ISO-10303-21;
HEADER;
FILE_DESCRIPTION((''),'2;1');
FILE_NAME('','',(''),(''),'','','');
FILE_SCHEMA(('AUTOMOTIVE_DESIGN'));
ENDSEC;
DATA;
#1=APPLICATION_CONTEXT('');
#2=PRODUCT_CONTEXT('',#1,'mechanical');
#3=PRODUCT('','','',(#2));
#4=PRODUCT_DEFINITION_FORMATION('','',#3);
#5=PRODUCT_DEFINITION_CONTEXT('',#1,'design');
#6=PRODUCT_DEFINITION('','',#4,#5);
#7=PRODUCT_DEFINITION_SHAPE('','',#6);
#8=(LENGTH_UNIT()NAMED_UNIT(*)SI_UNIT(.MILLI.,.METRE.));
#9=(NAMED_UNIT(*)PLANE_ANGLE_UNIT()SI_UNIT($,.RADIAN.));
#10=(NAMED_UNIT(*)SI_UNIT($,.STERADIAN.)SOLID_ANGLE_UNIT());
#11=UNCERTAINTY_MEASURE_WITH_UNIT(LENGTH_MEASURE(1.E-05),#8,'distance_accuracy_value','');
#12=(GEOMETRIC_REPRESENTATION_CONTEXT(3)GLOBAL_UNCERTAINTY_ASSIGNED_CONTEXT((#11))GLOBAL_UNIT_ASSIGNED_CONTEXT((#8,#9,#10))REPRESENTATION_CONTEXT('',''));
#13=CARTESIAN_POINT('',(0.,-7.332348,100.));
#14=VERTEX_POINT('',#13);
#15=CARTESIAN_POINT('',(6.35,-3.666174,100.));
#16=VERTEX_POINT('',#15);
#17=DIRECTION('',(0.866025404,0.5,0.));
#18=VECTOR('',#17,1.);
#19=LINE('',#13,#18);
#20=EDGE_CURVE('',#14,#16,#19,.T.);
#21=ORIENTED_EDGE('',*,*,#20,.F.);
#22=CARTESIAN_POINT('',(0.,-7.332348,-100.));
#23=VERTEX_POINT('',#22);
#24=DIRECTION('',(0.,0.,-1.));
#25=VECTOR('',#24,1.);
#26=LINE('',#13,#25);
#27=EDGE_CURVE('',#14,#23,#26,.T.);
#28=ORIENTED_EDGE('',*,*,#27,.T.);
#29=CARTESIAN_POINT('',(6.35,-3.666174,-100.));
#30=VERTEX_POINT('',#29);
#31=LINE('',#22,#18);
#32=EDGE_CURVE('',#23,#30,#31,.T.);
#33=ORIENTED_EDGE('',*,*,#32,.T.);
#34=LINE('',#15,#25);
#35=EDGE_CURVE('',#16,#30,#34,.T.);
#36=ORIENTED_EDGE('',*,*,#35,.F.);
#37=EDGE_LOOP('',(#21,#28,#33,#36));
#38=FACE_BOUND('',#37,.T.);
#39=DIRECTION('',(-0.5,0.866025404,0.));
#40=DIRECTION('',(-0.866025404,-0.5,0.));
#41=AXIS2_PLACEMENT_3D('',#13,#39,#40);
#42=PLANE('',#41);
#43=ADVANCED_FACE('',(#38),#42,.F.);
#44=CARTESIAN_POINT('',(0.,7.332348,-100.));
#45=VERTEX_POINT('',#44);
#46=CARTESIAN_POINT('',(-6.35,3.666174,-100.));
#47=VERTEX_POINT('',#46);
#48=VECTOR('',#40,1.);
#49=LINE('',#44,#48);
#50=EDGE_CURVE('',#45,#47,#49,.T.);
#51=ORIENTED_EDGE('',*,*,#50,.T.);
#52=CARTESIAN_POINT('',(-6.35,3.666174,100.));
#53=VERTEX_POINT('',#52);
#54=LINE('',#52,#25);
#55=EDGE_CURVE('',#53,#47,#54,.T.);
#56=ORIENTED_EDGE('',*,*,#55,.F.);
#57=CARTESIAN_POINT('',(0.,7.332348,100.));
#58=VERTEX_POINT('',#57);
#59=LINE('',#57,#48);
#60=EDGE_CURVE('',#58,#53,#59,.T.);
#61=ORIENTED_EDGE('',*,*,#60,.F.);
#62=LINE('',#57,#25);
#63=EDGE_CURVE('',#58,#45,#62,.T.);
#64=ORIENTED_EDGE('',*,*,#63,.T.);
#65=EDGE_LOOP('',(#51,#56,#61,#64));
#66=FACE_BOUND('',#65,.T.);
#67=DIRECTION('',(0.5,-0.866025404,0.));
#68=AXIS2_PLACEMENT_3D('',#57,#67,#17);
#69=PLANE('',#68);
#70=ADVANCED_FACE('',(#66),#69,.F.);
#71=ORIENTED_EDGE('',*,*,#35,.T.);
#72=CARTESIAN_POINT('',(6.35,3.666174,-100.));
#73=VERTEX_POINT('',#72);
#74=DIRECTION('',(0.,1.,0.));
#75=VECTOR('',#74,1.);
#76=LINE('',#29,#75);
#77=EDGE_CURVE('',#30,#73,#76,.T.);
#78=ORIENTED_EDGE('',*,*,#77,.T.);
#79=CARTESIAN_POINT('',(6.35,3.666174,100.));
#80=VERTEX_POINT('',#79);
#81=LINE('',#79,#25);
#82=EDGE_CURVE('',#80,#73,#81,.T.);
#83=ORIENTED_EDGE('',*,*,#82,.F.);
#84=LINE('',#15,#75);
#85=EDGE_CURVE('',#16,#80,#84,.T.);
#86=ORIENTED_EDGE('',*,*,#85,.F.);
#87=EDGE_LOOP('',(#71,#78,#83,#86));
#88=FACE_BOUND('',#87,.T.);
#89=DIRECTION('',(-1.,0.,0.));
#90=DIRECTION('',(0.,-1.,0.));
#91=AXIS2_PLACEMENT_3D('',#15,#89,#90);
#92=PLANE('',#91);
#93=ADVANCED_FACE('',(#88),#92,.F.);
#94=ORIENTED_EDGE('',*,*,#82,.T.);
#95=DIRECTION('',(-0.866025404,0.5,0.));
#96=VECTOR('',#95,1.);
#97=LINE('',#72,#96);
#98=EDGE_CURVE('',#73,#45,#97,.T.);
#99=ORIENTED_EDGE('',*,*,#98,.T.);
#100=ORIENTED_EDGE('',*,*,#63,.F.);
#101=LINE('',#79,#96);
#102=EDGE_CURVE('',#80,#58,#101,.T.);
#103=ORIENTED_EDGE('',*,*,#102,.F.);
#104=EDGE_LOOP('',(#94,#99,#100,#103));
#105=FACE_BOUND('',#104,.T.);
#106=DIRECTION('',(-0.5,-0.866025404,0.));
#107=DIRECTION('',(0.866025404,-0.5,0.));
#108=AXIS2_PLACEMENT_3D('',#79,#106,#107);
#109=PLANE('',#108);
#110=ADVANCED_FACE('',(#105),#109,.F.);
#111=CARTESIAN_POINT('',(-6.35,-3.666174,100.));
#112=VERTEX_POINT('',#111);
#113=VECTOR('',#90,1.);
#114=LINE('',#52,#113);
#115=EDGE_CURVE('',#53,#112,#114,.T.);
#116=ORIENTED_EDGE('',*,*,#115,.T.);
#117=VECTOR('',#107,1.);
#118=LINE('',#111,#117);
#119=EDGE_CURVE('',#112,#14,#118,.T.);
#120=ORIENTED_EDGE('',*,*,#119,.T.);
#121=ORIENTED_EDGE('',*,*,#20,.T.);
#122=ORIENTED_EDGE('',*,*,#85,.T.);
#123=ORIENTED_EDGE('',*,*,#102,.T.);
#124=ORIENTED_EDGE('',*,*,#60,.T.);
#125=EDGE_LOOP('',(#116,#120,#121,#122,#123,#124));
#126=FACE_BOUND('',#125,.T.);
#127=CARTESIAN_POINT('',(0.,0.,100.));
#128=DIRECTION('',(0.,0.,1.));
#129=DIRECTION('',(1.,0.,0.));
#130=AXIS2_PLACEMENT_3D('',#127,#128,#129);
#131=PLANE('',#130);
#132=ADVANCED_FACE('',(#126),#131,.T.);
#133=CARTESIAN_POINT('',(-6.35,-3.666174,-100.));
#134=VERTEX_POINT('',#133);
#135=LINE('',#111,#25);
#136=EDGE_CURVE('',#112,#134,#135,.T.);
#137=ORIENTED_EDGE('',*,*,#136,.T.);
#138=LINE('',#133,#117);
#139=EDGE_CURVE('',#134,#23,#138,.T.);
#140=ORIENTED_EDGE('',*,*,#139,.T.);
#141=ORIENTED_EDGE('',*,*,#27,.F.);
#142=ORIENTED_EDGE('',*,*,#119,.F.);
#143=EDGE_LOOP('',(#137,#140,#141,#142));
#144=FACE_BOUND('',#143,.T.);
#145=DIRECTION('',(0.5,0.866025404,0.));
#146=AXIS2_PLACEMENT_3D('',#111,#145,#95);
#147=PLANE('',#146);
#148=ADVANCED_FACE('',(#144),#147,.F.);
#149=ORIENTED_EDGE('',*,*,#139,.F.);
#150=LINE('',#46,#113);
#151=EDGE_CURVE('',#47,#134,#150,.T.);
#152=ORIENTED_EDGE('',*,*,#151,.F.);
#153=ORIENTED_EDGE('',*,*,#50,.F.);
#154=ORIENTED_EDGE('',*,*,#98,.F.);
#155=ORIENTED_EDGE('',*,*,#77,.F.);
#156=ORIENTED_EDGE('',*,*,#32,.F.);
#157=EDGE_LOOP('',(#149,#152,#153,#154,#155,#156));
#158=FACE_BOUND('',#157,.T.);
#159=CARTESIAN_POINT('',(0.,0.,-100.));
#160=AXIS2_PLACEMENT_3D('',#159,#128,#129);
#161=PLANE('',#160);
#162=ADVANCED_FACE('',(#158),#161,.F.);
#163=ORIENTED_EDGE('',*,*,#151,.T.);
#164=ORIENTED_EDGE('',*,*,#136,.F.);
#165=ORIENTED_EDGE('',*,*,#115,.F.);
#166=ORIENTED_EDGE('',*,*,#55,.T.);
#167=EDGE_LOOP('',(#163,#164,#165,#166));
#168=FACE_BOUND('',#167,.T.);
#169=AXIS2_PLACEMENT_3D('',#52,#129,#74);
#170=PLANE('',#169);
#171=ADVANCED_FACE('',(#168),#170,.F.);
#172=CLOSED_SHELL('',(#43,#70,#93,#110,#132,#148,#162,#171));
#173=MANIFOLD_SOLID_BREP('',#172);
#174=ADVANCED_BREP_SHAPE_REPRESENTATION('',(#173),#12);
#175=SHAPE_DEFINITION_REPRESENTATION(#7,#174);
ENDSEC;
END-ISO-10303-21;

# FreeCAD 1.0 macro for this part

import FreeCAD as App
import Part
import Sketcher
Q = App.Units.Quantity

doc = App.newDocument("Part")
body = doc.addObject("PartDesign::Body", "Body")

sketch1 = body.newObject("Sketcher::SketchObject", "Sketch")
sketch1.AttachmentSupport = (doc.getObject("XY_Plane"), [""])
sketch1.MapMode = "FlatFace"
sketch1.addGeometry([
    Part.LineSegment(App.Vector(6.35, 3.666174, 0), App.Vector(0, 7.332348, 0)),
    Part.LineSegment(App.Vector(0, 7.332348, 0), App.Vector(-6.35, 3.666174, 0)),
    Part.LineSegment(App.Vector(-6.35, 3.666174, 0), App.Vector(-6.35, -3.666174, 0)),
    Part.LineSegment(App.Vector(-6.35, -3.666174, 0), App.Vector(0, -7.332348, 0)),
    Part.LineSegment(App.Vector(0, -7.332348, 0), App.Vector(6.35, -3.666174, 0)),
    Part.LineSegment(App.Vector(6.35, -3.666174, 0), App.Vector(6.35, 3.666174, 0)),
], False)
sketch1.addConstraint([
    Sketcher.Constraint("Coincident", 0, 2, 1, 1),
    Sketcher.Constraint("Coincident", 1, 2, 2, 1),
    Sketcher.Constraint("Coincident", 2, 2, 3, 1),
    Sketcher.Constraint("Coincident", 3, 2, 4, 1),
    Sketcher.Constraint("Coincident", 4, 2, 5, 1),
    Sketcher.Constraint("Coincident", 5, 2, 0, 1),
    Sketcher.Constraint("Vertical", 2),
    Sketcher.Constraint("Vertical", 5),
    Sketcher.Constraint("Symmetric", 0, 2, 3, 2, -1, 1),
    Sketcher.Constraint("Symmetric", 1, 2, 4, 2, -1, 1),
    Sketcher.Constraint("PointOnObject", 0, 2, -2),
    Sketcher.Constraint("Parallel", 0, 3),
    Sketcher.Constraint("Horizontal", 2, 2, 4, 2),
    Sketcher.Constraint("Angle", 0, Q("150 deg")),
    Sketcher.Constraint("DistanceX", 2, 2, 4, 2, 12.7),
    Sketcher.Constraint("DistanceY", 2, 2, 2, 1, 7.332348),
])
pad1 = body.newObject("PartDesign::Pad", "Pad")
pad1.Profile = sketch1
pad1.Length = 200
pad1.Midplane = True

doc.recompute()
